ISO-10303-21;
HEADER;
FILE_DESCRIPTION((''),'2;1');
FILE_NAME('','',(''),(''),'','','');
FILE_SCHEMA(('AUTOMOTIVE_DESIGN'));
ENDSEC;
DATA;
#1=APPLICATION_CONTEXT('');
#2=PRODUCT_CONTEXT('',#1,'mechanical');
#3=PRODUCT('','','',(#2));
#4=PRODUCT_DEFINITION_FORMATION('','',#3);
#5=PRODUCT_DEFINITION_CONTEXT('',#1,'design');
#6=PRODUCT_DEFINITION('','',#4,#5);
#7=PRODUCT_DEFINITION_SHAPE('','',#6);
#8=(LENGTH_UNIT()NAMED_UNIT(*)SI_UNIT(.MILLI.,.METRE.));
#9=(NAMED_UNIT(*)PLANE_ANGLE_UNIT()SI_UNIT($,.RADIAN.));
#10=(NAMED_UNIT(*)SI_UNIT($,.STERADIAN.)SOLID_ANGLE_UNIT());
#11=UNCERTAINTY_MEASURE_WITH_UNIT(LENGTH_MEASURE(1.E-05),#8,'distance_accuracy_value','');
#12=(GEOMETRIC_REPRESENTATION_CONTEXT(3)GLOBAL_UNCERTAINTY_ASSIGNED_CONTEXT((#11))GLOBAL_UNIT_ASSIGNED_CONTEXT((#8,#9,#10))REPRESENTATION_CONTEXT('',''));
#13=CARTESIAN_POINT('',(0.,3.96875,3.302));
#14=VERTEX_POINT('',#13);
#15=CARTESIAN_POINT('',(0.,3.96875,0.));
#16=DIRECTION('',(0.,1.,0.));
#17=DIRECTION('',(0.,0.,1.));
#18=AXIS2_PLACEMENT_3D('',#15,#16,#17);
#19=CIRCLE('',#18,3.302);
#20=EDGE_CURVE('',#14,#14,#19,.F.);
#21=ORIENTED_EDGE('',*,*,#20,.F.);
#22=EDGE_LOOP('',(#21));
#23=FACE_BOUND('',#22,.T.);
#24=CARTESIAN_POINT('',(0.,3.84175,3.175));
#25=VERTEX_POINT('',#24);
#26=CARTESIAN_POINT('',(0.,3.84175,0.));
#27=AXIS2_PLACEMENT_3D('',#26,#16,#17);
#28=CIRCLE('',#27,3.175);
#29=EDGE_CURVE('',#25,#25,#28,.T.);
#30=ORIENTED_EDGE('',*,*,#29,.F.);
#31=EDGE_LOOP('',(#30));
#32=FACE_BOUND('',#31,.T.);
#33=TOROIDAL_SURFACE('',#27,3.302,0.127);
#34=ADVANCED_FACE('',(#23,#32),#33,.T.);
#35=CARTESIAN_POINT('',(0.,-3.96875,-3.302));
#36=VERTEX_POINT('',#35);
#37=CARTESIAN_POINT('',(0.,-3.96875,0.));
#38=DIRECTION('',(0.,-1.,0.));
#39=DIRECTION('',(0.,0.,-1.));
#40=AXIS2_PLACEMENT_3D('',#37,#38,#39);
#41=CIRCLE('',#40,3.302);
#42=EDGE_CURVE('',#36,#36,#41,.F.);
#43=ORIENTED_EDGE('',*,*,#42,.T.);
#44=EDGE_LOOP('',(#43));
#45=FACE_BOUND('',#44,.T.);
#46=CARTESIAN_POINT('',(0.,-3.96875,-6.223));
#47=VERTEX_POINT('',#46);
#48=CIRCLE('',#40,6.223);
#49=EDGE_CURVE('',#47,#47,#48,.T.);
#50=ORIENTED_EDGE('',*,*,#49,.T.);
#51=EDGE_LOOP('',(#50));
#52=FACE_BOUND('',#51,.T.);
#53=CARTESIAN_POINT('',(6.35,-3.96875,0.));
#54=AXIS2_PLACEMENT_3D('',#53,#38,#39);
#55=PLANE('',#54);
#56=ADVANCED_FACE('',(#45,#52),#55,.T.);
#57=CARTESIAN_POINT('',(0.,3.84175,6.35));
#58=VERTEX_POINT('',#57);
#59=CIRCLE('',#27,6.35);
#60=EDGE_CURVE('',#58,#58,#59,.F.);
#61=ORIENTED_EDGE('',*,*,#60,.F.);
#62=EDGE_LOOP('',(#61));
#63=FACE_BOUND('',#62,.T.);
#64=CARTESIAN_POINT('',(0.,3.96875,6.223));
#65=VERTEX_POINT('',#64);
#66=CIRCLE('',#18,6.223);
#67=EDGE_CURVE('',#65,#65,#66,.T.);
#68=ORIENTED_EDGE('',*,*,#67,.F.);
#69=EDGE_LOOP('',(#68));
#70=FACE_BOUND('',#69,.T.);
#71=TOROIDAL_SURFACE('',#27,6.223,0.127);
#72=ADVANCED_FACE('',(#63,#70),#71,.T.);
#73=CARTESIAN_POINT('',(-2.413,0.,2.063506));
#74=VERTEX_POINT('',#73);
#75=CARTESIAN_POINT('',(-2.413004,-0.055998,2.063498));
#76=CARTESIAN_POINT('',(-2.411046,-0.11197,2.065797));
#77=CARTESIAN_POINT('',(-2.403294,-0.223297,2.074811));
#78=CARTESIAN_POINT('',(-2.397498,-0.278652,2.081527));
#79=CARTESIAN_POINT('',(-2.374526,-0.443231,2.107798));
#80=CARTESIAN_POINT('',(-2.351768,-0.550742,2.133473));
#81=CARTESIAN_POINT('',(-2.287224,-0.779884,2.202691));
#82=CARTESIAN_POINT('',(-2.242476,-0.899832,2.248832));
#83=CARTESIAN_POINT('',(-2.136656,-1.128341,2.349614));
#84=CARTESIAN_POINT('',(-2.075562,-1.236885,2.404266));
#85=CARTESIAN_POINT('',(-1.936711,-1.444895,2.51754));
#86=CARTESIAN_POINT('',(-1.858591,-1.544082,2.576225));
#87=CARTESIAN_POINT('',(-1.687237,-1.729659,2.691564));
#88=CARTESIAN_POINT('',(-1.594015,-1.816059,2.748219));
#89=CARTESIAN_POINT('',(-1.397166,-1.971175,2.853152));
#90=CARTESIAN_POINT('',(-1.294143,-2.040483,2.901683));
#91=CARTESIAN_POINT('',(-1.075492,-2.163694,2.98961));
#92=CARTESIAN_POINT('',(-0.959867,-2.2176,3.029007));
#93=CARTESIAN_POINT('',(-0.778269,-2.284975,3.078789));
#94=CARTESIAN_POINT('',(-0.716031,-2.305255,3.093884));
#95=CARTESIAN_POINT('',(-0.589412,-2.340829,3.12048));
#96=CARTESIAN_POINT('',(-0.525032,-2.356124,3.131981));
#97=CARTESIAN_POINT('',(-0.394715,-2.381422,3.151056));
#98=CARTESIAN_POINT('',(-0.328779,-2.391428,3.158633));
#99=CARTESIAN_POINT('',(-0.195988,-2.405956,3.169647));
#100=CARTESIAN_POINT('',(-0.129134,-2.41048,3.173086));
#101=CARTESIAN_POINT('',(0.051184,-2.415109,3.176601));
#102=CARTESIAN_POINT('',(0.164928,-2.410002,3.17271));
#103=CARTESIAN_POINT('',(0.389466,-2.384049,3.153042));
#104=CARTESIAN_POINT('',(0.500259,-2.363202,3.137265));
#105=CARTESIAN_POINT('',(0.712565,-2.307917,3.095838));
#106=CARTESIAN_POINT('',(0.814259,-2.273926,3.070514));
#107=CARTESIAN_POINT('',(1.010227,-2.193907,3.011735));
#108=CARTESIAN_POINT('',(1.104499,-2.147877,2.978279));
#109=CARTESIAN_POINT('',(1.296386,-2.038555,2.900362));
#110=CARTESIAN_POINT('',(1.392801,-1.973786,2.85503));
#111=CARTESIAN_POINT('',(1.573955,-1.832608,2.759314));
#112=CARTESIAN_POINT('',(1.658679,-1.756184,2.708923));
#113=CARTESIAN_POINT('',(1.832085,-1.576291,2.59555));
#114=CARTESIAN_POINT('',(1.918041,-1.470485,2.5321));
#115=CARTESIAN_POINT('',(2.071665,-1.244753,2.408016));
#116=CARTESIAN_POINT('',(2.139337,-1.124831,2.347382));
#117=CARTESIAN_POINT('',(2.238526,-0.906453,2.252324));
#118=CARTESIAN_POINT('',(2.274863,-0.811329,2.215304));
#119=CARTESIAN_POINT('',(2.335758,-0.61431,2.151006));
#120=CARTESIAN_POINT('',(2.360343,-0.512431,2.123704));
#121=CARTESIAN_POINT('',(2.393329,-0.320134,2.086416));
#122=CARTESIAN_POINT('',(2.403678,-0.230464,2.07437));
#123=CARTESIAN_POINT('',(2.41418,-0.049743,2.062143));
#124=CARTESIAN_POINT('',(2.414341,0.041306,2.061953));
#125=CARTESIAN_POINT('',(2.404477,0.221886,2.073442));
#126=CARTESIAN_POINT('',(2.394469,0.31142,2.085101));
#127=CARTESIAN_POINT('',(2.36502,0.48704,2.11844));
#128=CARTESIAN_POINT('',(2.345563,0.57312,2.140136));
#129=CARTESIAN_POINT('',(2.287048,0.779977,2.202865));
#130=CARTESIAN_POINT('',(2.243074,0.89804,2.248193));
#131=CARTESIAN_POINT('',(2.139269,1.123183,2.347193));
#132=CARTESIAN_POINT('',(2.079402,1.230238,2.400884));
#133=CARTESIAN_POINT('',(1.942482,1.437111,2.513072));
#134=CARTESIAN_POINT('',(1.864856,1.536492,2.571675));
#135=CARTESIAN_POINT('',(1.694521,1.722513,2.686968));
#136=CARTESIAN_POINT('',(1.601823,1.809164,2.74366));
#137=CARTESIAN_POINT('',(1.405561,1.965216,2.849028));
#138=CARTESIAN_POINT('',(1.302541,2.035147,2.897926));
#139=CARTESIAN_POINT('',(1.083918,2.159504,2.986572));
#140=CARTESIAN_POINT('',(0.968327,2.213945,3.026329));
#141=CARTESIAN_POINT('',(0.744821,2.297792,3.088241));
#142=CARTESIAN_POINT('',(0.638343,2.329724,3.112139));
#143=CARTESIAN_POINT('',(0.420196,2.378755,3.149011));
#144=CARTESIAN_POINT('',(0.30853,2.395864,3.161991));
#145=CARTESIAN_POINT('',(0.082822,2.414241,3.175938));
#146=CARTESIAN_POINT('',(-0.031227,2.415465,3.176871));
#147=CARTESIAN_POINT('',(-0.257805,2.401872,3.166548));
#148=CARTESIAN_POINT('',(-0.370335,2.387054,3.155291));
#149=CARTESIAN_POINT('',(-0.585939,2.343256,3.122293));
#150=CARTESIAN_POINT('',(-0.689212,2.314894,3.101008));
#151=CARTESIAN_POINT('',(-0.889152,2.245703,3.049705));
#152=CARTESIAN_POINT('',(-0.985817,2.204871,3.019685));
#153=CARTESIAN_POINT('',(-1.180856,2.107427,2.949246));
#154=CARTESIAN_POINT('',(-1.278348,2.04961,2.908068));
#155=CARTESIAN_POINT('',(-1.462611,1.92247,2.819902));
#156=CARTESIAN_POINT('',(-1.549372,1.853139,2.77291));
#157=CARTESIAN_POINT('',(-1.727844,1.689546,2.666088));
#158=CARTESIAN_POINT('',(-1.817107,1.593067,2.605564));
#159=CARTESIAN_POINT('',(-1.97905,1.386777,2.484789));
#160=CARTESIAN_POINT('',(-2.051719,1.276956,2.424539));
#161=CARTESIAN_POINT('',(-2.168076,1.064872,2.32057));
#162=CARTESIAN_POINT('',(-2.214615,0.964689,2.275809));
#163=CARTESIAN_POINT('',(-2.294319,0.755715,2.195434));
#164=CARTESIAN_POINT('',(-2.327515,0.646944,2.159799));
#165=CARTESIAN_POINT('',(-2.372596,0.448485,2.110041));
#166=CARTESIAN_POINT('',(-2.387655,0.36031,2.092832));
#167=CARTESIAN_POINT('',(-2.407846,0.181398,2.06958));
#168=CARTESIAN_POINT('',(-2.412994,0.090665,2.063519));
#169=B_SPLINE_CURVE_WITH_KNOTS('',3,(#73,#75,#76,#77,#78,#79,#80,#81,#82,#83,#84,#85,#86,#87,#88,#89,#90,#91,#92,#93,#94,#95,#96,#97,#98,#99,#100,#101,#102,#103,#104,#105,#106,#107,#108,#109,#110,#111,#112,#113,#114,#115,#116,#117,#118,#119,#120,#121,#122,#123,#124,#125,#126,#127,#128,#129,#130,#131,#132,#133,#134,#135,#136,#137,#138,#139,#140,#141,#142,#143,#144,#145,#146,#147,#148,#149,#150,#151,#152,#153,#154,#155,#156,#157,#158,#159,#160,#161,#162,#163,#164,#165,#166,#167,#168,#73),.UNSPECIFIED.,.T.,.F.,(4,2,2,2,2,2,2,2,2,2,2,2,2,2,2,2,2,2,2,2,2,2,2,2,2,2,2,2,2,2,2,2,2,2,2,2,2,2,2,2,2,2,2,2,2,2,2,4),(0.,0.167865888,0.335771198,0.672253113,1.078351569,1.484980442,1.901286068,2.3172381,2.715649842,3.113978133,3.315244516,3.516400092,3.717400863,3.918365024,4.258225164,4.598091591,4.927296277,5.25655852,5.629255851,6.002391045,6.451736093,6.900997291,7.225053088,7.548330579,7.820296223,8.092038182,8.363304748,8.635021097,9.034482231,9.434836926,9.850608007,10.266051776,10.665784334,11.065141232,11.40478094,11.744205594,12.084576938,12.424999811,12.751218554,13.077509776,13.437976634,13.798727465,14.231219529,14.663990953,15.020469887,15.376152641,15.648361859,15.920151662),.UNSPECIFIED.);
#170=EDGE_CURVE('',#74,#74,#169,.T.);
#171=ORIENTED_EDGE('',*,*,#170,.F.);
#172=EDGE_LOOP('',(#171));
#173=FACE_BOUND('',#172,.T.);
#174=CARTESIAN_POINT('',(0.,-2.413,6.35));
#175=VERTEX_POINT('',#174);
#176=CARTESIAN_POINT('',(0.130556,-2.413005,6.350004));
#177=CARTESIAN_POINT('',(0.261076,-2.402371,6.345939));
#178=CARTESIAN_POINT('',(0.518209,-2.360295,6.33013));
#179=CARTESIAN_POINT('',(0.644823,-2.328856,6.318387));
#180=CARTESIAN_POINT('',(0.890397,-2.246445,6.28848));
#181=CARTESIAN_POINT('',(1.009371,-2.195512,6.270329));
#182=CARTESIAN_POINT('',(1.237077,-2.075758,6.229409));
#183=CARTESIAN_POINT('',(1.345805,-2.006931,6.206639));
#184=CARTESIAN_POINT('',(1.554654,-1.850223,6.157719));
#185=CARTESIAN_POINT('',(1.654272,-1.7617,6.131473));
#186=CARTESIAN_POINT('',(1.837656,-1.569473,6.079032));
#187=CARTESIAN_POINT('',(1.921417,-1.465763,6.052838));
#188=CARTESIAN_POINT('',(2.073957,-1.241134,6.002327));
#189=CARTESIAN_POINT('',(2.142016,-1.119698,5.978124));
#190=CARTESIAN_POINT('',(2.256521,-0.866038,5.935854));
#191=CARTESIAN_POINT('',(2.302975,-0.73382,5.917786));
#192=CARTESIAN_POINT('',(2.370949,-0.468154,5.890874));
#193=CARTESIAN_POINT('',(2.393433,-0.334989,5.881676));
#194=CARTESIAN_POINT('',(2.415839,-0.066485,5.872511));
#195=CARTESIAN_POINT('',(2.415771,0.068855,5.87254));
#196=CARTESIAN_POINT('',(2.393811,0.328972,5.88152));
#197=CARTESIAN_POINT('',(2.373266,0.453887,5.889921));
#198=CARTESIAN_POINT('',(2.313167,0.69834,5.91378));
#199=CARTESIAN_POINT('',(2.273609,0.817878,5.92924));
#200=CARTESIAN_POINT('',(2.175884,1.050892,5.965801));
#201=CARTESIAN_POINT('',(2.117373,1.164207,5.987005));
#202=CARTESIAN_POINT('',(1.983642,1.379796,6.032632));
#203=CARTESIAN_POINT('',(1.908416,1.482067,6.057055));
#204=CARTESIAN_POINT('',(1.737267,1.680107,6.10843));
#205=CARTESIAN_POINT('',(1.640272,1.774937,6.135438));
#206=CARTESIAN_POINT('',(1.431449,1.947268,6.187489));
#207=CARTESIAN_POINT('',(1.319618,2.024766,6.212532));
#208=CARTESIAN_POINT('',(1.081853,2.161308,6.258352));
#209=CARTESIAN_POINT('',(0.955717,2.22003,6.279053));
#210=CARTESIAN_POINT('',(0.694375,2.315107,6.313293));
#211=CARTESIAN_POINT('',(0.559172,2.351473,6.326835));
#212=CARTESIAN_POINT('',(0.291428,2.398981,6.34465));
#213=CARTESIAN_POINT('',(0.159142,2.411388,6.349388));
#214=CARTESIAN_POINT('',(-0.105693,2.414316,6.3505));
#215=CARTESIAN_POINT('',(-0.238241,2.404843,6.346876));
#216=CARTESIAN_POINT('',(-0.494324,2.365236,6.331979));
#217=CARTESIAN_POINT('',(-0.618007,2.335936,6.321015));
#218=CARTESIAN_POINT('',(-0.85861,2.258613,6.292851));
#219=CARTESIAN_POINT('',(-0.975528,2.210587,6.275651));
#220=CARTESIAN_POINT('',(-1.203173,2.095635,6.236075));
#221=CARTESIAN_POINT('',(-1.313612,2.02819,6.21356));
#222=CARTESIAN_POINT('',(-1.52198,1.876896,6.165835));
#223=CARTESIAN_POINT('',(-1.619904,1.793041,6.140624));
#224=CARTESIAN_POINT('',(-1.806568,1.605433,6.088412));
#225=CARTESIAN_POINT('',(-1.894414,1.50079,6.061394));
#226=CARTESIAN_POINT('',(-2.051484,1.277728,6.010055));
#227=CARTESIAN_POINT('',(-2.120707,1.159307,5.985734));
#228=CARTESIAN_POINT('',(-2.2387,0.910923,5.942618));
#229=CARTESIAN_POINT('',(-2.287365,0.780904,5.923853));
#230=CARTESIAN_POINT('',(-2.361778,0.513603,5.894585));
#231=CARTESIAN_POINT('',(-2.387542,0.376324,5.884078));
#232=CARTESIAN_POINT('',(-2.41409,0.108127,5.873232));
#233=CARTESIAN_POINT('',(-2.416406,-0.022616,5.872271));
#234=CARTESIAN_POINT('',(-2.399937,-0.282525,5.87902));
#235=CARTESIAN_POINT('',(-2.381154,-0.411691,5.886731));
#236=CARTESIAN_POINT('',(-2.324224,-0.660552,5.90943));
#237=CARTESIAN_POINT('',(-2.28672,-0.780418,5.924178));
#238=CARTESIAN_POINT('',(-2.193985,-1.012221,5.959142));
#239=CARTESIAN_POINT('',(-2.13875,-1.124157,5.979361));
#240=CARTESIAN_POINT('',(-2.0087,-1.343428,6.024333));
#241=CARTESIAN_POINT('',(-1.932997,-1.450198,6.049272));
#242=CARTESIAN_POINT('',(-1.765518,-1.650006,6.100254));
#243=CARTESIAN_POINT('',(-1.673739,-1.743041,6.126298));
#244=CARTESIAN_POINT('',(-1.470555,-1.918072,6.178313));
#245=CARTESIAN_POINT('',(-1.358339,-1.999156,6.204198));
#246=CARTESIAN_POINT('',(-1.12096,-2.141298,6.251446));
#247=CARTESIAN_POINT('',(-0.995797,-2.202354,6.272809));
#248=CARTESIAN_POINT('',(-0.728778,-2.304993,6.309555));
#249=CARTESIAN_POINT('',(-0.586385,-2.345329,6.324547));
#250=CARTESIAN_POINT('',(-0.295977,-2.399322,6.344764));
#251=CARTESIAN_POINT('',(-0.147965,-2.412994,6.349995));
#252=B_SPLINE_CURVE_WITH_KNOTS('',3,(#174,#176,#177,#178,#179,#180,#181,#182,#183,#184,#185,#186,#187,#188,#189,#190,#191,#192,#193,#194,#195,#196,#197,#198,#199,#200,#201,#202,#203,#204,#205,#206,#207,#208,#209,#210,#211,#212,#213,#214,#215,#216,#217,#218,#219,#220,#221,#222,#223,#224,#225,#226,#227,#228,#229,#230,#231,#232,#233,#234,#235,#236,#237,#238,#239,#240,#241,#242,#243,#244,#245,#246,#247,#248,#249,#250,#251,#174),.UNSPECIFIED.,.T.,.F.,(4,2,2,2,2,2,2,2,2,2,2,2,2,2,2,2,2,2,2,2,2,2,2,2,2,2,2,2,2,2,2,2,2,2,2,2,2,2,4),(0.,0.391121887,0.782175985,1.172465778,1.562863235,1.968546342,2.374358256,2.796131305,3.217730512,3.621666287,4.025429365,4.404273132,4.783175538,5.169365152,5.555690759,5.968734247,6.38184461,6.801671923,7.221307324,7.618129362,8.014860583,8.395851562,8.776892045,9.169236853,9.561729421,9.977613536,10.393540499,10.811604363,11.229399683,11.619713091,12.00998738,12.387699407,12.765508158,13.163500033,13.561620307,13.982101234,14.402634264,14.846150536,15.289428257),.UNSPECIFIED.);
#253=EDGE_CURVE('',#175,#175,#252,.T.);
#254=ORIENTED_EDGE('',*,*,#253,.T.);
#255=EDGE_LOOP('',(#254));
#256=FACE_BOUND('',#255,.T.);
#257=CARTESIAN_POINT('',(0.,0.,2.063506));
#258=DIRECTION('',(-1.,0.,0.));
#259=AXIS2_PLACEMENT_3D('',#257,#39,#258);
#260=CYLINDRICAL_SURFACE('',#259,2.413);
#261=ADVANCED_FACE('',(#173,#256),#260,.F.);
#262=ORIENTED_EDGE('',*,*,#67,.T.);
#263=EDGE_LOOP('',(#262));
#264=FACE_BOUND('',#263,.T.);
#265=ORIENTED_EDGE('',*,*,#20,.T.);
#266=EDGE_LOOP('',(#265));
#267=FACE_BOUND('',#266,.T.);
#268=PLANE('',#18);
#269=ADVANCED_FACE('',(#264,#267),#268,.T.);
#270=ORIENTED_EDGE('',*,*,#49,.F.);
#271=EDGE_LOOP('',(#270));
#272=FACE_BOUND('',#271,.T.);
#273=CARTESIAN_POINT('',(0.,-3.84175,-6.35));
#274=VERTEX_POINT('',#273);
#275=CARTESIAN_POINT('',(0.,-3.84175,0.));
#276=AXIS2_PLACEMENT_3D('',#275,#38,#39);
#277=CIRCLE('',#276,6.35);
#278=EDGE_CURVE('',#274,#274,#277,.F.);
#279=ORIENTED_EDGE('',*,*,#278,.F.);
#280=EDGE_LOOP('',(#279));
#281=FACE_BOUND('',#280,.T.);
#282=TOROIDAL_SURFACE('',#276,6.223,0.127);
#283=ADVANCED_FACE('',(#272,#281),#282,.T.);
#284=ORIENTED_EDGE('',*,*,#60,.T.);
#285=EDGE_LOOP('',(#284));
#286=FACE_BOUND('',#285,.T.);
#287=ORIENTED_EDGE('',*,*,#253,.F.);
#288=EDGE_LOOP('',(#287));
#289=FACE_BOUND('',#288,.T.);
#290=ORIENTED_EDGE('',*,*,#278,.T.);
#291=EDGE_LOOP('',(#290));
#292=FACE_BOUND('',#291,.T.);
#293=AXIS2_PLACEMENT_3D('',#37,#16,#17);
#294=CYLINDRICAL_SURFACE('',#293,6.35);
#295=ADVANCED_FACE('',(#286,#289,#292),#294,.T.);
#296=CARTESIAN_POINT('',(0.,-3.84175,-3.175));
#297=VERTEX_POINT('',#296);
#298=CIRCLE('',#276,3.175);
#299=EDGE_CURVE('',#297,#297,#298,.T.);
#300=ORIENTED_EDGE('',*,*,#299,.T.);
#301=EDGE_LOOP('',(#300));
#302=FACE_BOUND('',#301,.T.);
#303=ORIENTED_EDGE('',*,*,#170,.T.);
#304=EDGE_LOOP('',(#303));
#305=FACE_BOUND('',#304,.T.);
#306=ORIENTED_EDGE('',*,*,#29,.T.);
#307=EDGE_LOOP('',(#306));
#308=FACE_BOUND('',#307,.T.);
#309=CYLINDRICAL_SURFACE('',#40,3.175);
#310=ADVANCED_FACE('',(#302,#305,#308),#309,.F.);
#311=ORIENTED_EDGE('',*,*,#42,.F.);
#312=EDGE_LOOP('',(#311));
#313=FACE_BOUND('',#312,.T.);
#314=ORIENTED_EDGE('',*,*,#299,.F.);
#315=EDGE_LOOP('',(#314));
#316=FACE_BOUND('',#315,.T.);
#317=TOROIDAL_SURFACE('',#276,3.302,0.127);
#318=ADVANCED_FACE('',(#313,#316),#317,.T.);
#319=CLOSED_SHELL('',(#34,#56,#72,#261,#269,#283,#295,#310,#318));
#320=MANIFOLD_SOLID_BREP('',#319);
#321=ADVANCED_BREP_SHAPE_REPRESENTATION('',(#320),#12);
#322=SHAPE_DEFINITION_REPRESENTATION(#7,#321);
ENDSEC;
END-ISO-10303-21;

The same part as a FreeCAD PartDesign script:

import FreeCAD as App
import Part
import Sketcher
Q = App.Units.Quantity


def edges_at(feature, points):
    """Names of the edges that pass closest to the given points."""
    edges = feature.Shape.Edges
    near = lambda p: min(range(len(edges)), key=lambda i: edges[i].distToShape(Part.Vertex(*p))[0])
    return sorted({f"Edge{near(p) + 1}" for p in points})

doc = App.newDocument("Part")
body = doc.addObject("PartDesign::Body", "Body")

sketch1 = body.newObject("Sketcher::SketchObject", "Sketch")
sketch1.AttachmentSupport = (doc.getObject("XY_Plane"), [""])
sketch1.MapMode = "FlatFace"
sketch1.addGeometry([
    Part.LineSegment(App.Vector(6, 4, 0), App.Vector(6, -4, 0)),
    Part.LineSegment(App.Vector(6, -4, 0), App.Vector(0, -4, 0)),
    Part.LineSegment(App.Vector(0, -4, 0), App.Vector(0, 4, 0)),
    Part.LineSegment(App.Vector(0, 4, 0), App.Vector(6, 4, 0)),
], False)
sketch1.addConstraint([
    Sketcher.Constraint("Coincident", 0, 2, 1, 1),
    Sketcher.Constraint("Coincident", 1, 2, 2, 1),
    Sketcher.Constraint("Coincident", 2, 2, 3, 1),
    Sketcher.Constraint("Coincident", 3, 2, 0, 1),
    Sketcher.Constraint("Vertical", 0),
    Sketcher.Constraint("Horizontal", 1),
    Sketcher.Constraint("Vertical", 2),
    Sketcher.Constraint("Horizontal", 3),
    Sketcher.Constraint("Symmetric", 1, 2, 2, 2, -1, 1),
    Sketcher.Constraint("DistanceX", 1, 2, 1, 1, Q("0.25 in")),
    Sketcher.Constraint("DistanceY", 0, 2, 0, 1, Q("0.3125 in")),
])
revolution = body.newObject("PartDesign::Revolution", "Revolution")
revolution.Profile = sketch1
revolution.ReferenceAxis = (sketch1, ["V_Axis"])
revolution.Angle = 360

sketch2 = body.newObject("Sketcher::SketchObject", "Sketch001")
sketch2.AttachmentSupport = (doc.getObject("XZ_Plane"), [""])
sketch2.MapMode = "FlatFace"
sketch2.AttachmentOffset = App.Placement(App.Vector(0, 0, 0.15625 * 25.4), App.Rotation())
sketch2.addGeometry(Part.Circle(App.Vector(0, 0, 0), App.Vector(0, 0, 1), 3.2), False)
sketch2.addConstraint([
    Sketcher.Constraint("Coincident", 0, 3, -1, 1),
    Sketcher.Constraint("Diameter", 0, Q("0.25 in")),
])
doc.recompute()
hole = body.newObject("PartDesign::Hole", "Hole")
hole.Profile = sketch2
hole.ThreadType = "None"
hole.Diameter = Q("0.25 in")
hole.DepthType = "Dimension"
hole.Depth = Q("0.3125 in")
hole.DrillPoint = "Flat"

sketch3 = body.newObject("Sketcher::SketchObject", "Sketch002")
sketch3.AttachmentSupport = (doc.getObject("YZ_Plane"), [""])
sketch3.MapMode = "FlatFace"
sketch3.addGeometry([
    Part.LineSegment(App.Vector(0, 6.4, 0), App.Vector(0, 2.1, 0)),
    Part.LineSegment(App.Vector(0, 2.1, 0), App.Vector(2.4, 2.1, 0)),
    Part.LineSegment(App.Vector(2.4, 2.1, 0), App.Vector(2.4, 6.4, 0)),
    Part.LineSegment(App.Vector(2.4, 6.4, 0), App.Vector(0, 6.4, 0)),
], False)
sketch3.addConstraint([
    Sketcher.Constraint("Coincident", 0, 2, 1, 1),
    Sketcher.Constraint("Coincident", 1, 2, 2, 1),
    Sketcher.Constraint("Coincident", 2, 2, 3, 1),
    Sketcher.Constraint("Coincident", 3, 2, 0, 1),
    Sketcher.Constraint("Vertical", 0),
    Sketcher.Constraint("Horizontal", 1),
    Sketcher.Constraint("Vertical", 2),
    Sketcher.Constraint("Horizontal", 3),
    Sketcher.Constraint("PointOnObject", 0, 2, -2),
    Sketcher.Constraint("DistanceX", 1, 1, 1, 2, Q("0.095 in")),
    Sketcher.Constraint("DistanceY", -1, 1, 2, 2, Q("0.25 in")),
    Sketcher.Constraint("DistanceY", 0, 2, 0, 1, 4.286494),
])
groove = body.newObject("PartDesign::Groove", "Groove")
groove.Profile = sketch3
groove.ReferenceAxis = (sketch3, ["V_Axis"])
groove.Angle = 360
doc.recompute()

fillet = body.newObject("PartDesign::Fillet", "Fillet")
fillet.Base = (groove, edges_at(groove, [
    (-3.175, -3.969, 0),
    (-3.175, 3.969, 0),
    (-6.35, 3.969, 0),
    (-6.35, -3.969, 0),
]))
fillet.Radius = Q("0.005 in")

doc.recompute()
